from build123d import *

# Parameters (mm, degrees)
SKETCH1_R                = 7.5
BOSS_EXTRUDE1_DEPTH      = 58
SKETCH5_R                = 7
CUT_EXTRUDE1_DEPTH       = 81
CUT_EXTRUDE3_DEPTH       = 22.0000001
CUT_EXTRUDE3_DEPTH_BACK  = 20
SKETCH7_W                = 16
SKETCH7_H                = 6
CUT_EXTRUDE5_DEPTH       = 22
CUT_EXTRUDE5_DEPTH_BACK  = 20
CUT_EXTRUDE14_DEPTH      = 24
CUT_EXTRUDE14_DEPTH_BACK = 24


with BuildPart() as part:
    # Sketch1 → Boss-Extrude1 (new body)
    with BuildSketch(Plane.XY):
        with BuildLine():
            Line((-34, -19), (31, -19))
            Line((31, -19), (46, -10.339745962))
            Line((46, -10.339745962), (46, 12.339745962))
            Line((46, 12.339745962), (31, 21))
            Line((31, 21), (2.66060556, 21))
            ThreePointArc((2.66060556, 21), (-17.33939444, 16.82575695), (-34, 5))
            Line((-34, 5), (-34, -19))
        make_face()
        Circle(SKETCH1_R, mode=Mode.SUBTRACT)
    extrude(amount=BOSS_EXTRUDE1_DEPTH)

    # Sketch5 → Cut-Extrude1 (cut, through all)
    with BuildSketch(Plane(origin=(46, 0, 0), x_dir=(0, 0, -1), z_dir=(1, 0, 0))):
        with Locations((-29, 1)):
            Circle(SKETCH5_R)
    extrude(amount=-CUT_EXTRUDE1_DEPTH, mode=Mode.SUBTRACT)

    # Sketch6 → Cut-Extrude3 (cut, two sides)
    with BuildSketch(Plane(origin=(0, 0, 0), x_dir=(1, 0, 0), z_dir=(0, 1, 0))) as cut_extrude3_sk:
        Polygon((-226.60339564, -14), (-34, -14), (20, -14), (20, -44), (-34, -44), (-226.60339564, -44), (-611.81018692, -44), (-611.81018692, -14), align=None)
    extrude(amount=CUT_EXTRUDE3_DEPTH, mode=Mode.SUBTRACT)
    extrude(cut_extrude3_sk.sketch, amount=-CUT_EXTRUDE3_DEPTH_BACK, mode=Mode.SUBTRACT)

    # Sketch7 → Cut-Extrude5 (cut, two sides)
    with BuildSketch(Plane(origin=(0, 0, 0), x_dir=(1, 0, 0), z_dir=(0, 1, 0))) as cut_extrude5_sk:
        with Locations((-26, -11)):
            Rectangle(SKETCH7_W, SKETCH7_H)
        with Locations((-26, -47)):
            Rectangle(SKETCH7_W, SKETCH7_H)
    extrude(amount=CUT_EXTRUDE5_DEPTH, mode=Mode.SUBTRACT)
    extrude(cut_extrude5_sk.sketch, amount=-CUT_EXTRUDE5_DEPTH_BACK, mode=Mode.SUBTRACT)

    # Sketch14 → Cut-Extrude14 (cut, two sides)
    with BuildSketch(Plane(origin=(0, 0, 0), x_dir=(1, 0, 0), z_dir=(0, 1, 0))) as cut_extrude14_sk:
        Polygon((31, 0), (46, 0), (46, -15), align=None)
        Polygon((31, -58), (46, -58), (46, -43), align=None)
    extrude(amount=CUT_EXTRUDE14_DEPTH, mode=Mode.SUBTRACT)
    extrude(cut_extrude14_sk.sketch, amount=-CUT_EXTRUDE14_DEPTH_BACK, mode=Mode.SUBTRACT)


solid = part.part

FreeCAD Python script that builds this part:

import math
import FreeCAD as App
import Part
import Sketcher
from FreeCAD import Vector
Q = App.Units.Quantity


def add_polygon(sketch, points):
    """Adds a closed chain of lines whose ends are joined by coincident constraints."""
    first, n = sketch.GeometryCount, len(points)
    for a, b in zip(points, points[1:] + points[:1]):
        sketch.addGeometry(Part.LineSegment(App.Vector(*a, 0), App.Vector(*b, 0)), False)
    for i in range(n):
        sketch.addConstraint(Sketcher.Constraint("Coincident", first + i, 2, first + (i + 1) % n, 1))

doc = App.newDocument("Part")
body = doc.addObject("PartDesign::Body", "Body")

sketch1 = doc.addObject("Sketcher::SketchObject", "Sketch")
body.addObject(sketch1)
sketch1.AttachmentSupport = (doc.XY_Plane, [""])
sketch1.MapMode = "FlatFace"
sketch1.addGeometry([
    Part.LineSegment(Vector(-34, -19, 0), Vector(31, -19, 0)),
    Part.LineSegment(Vector(31, -19, 0), Vector(46, -10, 0)),
    Part.LineSegment(Vector(46, -10, 0), Vector(46, 12, 0)),
    Part.LineSegment(Vector(46, 12, 0), Vector(31, 21, 0)),
    Part.LineSegment(Vector(31, 21, 0), Vector(3, 21, 0)),
    Part.ArcOfCircle(Part.Circle(Vector(3, -29, 0), Vector(0, 0, 1), 50), math.radians(90), math.radians(137)),
    Part.LineSegment(Vector(-34, 5, 0), Vector(-34, -19, 0)),
    Part.Circle(Vector(0, 0, 0), Vector(0, 0, 1), 8),
], False)
sketch1.addConstraint([
    Sketcher.Constraint("Coincident", 0, 2, 1, 1),
    Sketcher.Constraint("Coincident", 1, 2, 2, 1),
    Sketcher.Constraint("Coincident", 2, 2, 3, 1),
    Sketcher.Constraint("Coincident", 3, 2, 4, 1),
    Sketcher.Constraint("Tangent", 4, 2, 5, 1),
    Sketcher.Constraint("Coincident", 5, 2, 6, 1),
    Sketcher.Constraint("Coincident", 6, 2, 0, 1),
    Sketcher.Constraint("Horizontal", 0),
    Sketcher.Constraint("Vertical", 2),
    Sketcher.Constraint("Horizontal", 4),
    Sketcher.Constraint("Vertical", 6),
    Sketcher.Constraint("Coincident", 7, 3, -1, 1),
    Sketcher.Constraint("Vertical", 0, 2, 3, 2),
    Sketcher.Constraint("Equal", 1, 3),
    Sketcher.Constraint("Diameter", 7, 15.0),
    Sketcher.Constraint("Radius", 5, 50.0),
    Sketcher.Constraint("DistanceX", 0, 1, 0, 2, 65.0),
    Sketcher.Constraint("DistanceY", 6, 2, 6, 1, 24.0),
    Sketcher.Constraint("Angle", 1, Q("30 deg")),
    Sketcher.Constraint("DistanceY", 5, 3, -1, 1, 29.0),
    Sketcher.Constraint("DistanceX", -1, 1, 0, 2, 31.0),
    Sketcher.Constraint("DistanceY", 0, 2, -1, 1, 19.0),
    Sketcher.Constraint("DistanceX", -1, 1, 1, 2, 46.0),
])
pad1 = doc.addObject("PartDesign::Pad", "Pad")
body.addObject(pad1)
pad1.Profile = sketch1
pad1.Length = 58

sketch2 = doc.addObject("Sketcher::SketchObject", "Sketch001")
body.addObject(sketch2)
sketch2.AttachmentSupport = (doc.YZ_Plane, [""])
sketch2.MapMode = "FlatFace"
sketch2.AttachmentOffset = App.Placement(Vector(0, 0, 46), App.Rotation())
sketch2.addGeometry(Part.Circle(Vector(1, 29, 0), Vector(0, 0, 1), 7), False)
sketch2.addConstraint([
    Sketcher.Constraint("Diameter", 0, 14.0),
    Sketcher.Constraint("DistanceX", -1, 1, 0, 3, 1.0),
    Sketcher.Constraint("DistanceY", -1, 1, 0, 3, 29.0),
])
pocket1 = doc.addObject("PartDesign::Pocket", "Pocket")
body.addObject(pocket1)
pocket1.Profile = sketch2
pocket1.Type = "ThroughAll"

sketch3 = doc.addObject("Sketcher::SketchObject", "Sketch002")
body.addObject(sketch3)
sketch3.AttachmentSupport = (doc.XZ_Plane, [""])
sketch3.MapMode = "FlatFace"
add_polygon(sketch3, [(20, 14), (-612, 14), (-612, 44), (20, 44)])
sketch3.addConstraint([
    Sketcher.Constraint("Horizontal", 0),
    Sketcher.Constraint("Vertical", 1),
    Sketcher.Constraint("Horizontal", 2),
    Sketcher.Constraint("Vertical", 3),
    Sketcher.Constraint("DistanceY", 1, 1, 1, 2, 30.0),
    Sketcher.Constraint("DistanceY", -1, 1, 0, 2, 14.0),
    Sketcher.Constraint("DistanceX", -1, 1, 2, 2, 20.0),
    Sketcher.Constraint("DistanceX", 0, 2, 0, 1, 631.810187),
])
pocket2 = doc.addObject("PartDesign::Pocket", "Pocket001")
body.addObject(pocket2)
pocket2.Profile = sketch3
pocket2.Type = "ThroughAll"
pocket2.Midplane = True

sketch4 = doc.addObject("Sketcher::SketchObject", "Sketch003")
body.addObject(sketch4)
sketch4.AttachmentSupport = (doc.XZ_Plane, [""])
sketch4.MapMode = "FlatFace"
add_polygon(sketch4, [(-34, 8), (-34, 14), (-18, 14), (-18, 8)])
add_polygon(sketch4, [(-34, 44), (-34, 50), (-18, 50), (-18, 44)])
sketch4.addConstraint([
    Sketcher.Constraint("Vertical", 0),
    Sketcher.Constraint("Horizontal", 1),
    Sketcher.Constraint("Vertical", 2),
    Sketcher.Constraint("Horizontal", 3),
    Sketcher.Constraint("Vertical", 4),
    Sketcher.Constraint("Horizontal", 5),
    Sketcher.Constraint("Vertical", 6),
    Sketcher.Constraint("Horizontal", 7),
    Sketcher.Constraint("Vertical", 3, 2, 4, 2),
    Sketcher.Constraint("Vertical", 2, 2, 5, 2),
    Sketcher.Constraint("Equal", 2, 4),
    Sketcher.Constraint("DistanceX", 1, 1, 1, 2, 16.0),
    Sketcher.Constraint("DistanceY", 0, 1, 0, 2, 6.0),
    Sketcher.Constraint("DistanceX", 0, 2, -1, 1, 34.0),
    Sketcher.Constraint("DistanceY", -1, 1, 0, 2, 14.0),
    Sketcher.Constraint("DistanceY", -1, 1, 4, 2, 50.0),
])
pocket3 = doc.addObject("PartDesign::Pocket", "Pocket002")
body.addObject(pocket3)
pocket3.Profile = sketch4
pocket3.Type = "ThroughAll"
pocket3.Midplane = True

sketch5 = doc.addObject("Sketcher::SketchObject", "Sketch004")
body.addObject(sketch5)
sketch5.AttachmentSupport = (doc.XZ_Plane, [""])
sketch5.MapMode = "FlatFace"
add_polygon(sketch5, [(46, 0), (31, 0), (46, 15)])
add_polygon(sketch5, [(31, 58), (46, 58), (46, 43)])
sketch5.addConstraint([
    Sketcher.Constraint("Horizontal", 0),
    Sketcher.Constraint("Vertical", 2),
    Sketcher.Constraint("Horizontal", 3),
    Sketcher.Constraint("Vertical", 4),
    Sketcher.Constraint("PointOnObject", 0, 2, -1),
    Sketcher.Constraint("Perpendicular", 1, 5),
    Sketcher.Constraint("Vertical", 2, 2, 3, 2),
    Sketcher.Constraint("Vertical", 0, 2, 5, 2),
    Sketcher.Constraint("Equal", 3, 2),
    Sketcher.Constraint("DistanceX", 0, 2, 0, 1, 15.0),
    Sketcher.Constraint("DistanceX", -1, 1, 0, 2, 31.0),
    Sketcher.Constraint("DistanceY", -1, 1, 3, 2, 58.0),
])
pocket4 = doc.addObject("PartDesign::Pocket", "Pocket003")
body.addObject(pocket4)
pocket4.Profile = sketch5
pocket4.Type = "ThroughAll"
pocket4.Midplane = True

doc.recompute()
